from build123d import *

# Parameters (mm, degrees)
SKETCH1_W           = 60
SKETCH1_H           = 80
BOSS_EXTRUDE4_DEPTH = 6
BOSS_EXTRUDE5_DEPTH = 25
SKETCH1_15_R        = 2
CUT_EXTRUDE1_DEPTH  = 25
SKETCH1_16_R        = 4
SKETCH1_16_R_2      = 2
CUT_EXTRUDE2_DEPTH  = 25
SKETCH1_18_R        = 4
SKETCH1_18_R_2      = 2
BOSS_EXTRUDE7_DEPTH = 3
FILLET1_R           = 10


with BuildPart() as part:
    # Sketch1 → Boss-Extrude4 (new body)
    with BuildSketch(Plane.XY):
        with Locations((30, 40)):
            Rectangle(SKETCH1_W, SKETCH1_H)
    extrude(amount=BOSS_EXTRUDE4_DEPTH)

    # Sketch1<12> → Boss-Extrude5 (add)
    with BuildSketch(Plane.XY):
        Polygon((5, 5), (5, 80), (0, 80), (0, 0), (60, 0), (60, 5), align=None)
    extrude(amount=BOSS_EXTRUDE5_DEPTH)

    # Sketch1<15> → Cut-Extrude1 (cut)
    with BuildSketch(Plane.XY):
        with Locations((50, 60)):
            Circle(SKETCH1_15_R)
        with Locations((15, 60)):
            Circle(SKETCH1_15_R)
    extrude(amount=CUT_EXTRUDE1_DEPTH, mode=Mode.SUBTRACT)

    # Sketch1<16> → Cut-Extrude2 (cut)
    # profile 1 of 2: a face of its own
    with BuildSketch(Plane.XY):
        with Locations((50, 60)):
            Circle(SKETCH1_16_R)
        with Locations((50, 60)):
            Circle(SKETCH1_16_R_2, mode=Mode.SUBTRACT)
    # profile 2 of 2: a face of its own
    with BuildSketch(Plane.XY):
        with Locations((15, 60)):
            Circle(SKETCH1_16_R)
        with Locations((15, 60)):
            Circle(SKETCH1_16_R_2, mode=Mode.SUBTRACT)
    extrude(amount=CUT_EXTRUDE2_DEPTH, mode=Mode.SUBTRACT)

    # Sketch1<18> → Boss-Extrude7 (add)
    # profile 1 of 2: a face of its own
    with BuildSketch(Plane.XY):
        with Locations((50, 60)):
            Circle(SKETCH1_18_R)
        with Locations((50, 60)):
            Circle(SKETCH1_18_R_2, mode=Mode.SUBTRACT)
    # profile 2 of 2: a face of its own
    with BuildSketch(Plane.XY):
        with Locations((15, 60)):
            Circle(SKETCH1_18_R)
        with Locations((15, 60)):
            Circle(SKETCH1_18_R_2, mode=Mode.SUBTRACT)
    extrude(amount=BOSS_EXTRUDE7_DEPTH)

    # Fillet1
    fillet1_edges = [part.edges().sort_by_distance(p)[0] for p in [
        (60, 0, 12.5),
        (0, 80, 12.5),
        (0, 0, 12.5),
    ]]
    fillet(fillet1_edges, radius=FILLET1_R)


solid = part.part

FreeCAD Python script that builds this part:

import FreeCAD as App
import Part
import Sketcher
from FreeCAD import Vector
Q = App.Units.Quantity


def edges_at(feature, points):
    """Names of the edges that pass closest to the given points."""
    edges = feature.Shape.Edges
    near = lambda p: min(range(len(edges)), key=lambda i: edges[i].distToShape(Part.Vertex(*p))[0])
    return sorted({f"Edge{near(p) + 1}" for p in points})

doc = App.newDocument("Part")
body = doc.addObject("PartDesign::Body", "Body")

# Sketch on XY plane
sketch1 = body.newObject("Sketcher::SketchObject", "Sketch")
sketch1.AttachmentSupport = (doc.getObject("XY_Plane"), [""])
sketch1.MapMode = "FlatFace"
sketch1.addGeometry(Part.LineSegment(Vector(0, 80, 0), Vector(0, 0, 0)), False)
sketch1.addGeometry(Part.LineSegment(Vector(0, 0, 0), Vector(60, 0, 0)), False)
sketch1.addGeometry(Part.LineSegment(Vector(60, 0, 0), Vector(60, 80, 0)), False)
sketch1.addGeometry(Part.LineSegment(Vector(60, 80, 0), Vector(0, 80, 0)), False)
sketch1.addConstraint(Sketcher.Constraint("Coincident", 0, 2, 1, 1))
sketch1.addConstraint(Sketcher.Constraint("Coincident", 1, 2, 2, 1))
sketch1.addConstraint(Sketcher.Constraint("Coincident", 2, 2, 3, 1))
sketch1.addConstraint(Sketcher.Constraint("Coincident", 3, 2, 0, 1))
sketch1.addConstraint(Sketcher.Constraint("Vertical", 0))
sketch1.addConstraint(Sketcher.Constraint("Horizontal", 1))
sketch1.addConstraint(Sketcher.Constraint("Vertical", 2))
sketch1.addConstraint(Sketcher.Constraint("Horizontal", 3))
sketch1.addConstraint(Sketcher.Constraint("Coincident", 0, 2, -1, 1))
sketch1.addConstraint(Sketcher.Constraint("DistanceX", 1, 1, 1, 2, Q("60 mm")))
sketch1.addConstraint(Sketcher.Constraint("DistanceY", 0, 2, 0, 1, Q("80 mm")))
pad1 = body.newObject("PartDesign::Pad", "Pad")
pad1.Profile = sketch1
pad1.Length = 6

# Sketch on XY plane
sketch2 = body.newObject("Sketcher::SketchObject", "Sketch001")
sketch2.AttachmentSupport = (doc.getObject("XY_Plane"), [""])
sketch2.MapMode = "FlatFace"
sketch2.addGeometry(Part.LineSegment(Vector(5, 5, 0), Vector(5, 80, 0)), False)
sketch2.addGeometry(Part.LineSegment(Vector(5, 80, 0), Vector(0, 80, 0)), False)
sketch2.addGeometry(Part.LineSegment(Vector(0, 80, 0), Vector(0, 0, 0)), False)
sketch2.addGeometry(Part.LineSegment(Vector(0, 0, 0), Vector(60, 0, 0)), False)
sketch2.addGeometry(Part.LineSegment(Vector(60, 0, 0), Vector(60, 5, 0)), False)
sketch2.addGeometry(Part.LineSegment(Vector(60, 5, 0), Vector(5, 5, 0)), False)
sketch2.addConstraint(Sketcher.Constraint("Coincident", 0, 2, 1, 1))
sketch2.addConstraint(Sketcher.Constraint("Coincident", 1, 2, 2, 1))
sketch2.addConstraint(Sketcher.Constraint("Coincident", 2, 2, 3, 1))
sketch2.addConstraint(Sketcher.Constraint("Coincident", 3, 2, 4, 1))
sketch2.addConstraint(Sketcher.Constraint("Coincident", 4, 2, 5, 1))
sketch2.addConstraint(Sketcher.Constraint("Coincident", 5, 2, 0, 1))
sketch2.addConstraint(Sketcher.Constraint("Vertical", 0))
sketch2.addConstraint(Sketcher.Constraint("Horizontal", 1))
sketch2.addConstraint(Sketcher.Constraint("Vertical", 2))
sketch2.addConstraint(Sketcher.Constraint("Horizontal", 3))
sketch2.addConstraint(Sketcher.Constraint("Vertical", 4))
sketch2.addConstraint(Sketcher.Constraint("Horizontal", 5))
sketch2.addConstraint(Sketcher.Constraint("Coincident", 2, 2, -1, 1))
sketch2.addConstraint(Sketcher.Constraint("Equal", 1, 4))
sketch2.addConstraint(Sketcher.Constraint("DistanceX", 1, 2, 1, 1, Q("5 mm")))
sketch2.addConstraint(Sketcher.Constraint("DistanceX", 3, 1, 3, 2, Q("60 mm")))
sketch2.addConstraint(Sketcher.Constraint("DistanceY", 0, 1, 0, 2, Q("75 mm")))
pad2 = body.newObject("PartDesign::Pad", "Pad001")
pad2.Profile = sketch2
pad2.Length = 25

# Sketch on XY plane
sketch3 = body.newObject("Sketcher::SketchObject", "Sketch002")
sketch3.AttachmentSupport = (doc.getObject("XY_Plane"), [""])
sketch3.MapMode = "FlatFace"
sketch3.addGeometry(Part.Circle(Vector(50, 60, 0), Vector(0, 0, 1), 2), False)
sketch3.addGeometry(Part.Circle(Vector(15, 60, 0), Vector(0, 0, 1), 2), False)
sketch3.addConstraint(Sketcher.Constraint("Equal", 0, 1))
sketch3.addConstraint(Sketcher.Constraint("Horizontal", 0, 3, 1, 3))
sketch3.addConstraint(Sketcher.Constraint("Diameter", 0, Q("4 mm")))
sketch3.addConstraint(Sketcher.Constraint("DistanceX", -1, 1, 0, 3, Q("50 mm")))
sketch3.addConstraint(Sketcher.Constraint("DistanceY", -1, 1, 0, 3, Q("60 mm")))
sketch3.addConstraint(Sketcher.Constraint("DistanceX", -1, 1, 1, 3, Q("15 mm")))
pocket1 = body.newObject("PartDesign::Pocket", "Pocket")
pocket1.Profile = sketch3
pocket1.Length = 25
pocket1.Reversed = True

# Sketch on XY plane
sketch4 = body.newObject("Sketcher::SketchObject", "Sketch003")
sketch4.AttachmentSupport = (doc.getObject("XY_Plane"), [""])
sketch4.MapMode = "FlatFace"
sketch4.addGeometry(Part.Circle(Vector(50, 60, 0), Vector(0, 0, 1), 4), False)
sketch4.addGeometry(Part.Circle(Vector(50, 60, 0), Vector(0, 0, 1), 2), False)
sketch4.addGeometry(Part.Circle(Vector(15, 60, 0), Vector(0, 0, 1), 4), False)
sketch4.addGeometry(Part.Circle(Vector(15, 60, 0), Vector(0, 0, 1), 2), False)
sketch4.addConstraint(Sketcher.Constraint("Coincident", 1, 3, 0, 3))
sketch4.addConstraint(Sketcher.Constraint("Coincident", 3, 3, 2, 3))
sketch4.addConstraint(Sketcher.Constraint("Equal", 0, 2))
sketch4.addConstraint(Sketcher.Constraint("Equal", 1, 3))
sketch4.addConstraint(Sketcher.Constraint("Horizontal", 1, 3, 2, 3))
sketch4.addConstraint(Sketcher.Constraint("Diameter", 0, Q("8 mm")))
sketch4.addConstraint(Sketcher.Constraint("Diameter", 1, Q("4 mm")))
sketch4.addConstraint(Sketcher.Constraint("DistanceX", -1, 1, 0, 3, Q("50 mm")))
sketch4.addConstraint(Sketcher.Constraint("DistanceY", -1, 1, 0, 3, Q("60 mm")))
sketch4.addConstraint(Sketcher.Constraint("DistanceX", -1, 1, 2, 3, Q("15 mm")))
pocket2 = body.newObject("PartDesign::Pocket", "Pocket001")
pocket2.Profile = sketch4
pocket2.Length = 25
pocket2.Reversed = True

# Sketch on XY plane
sketch5 = body.newObject("Sketcher::SketchObject", "Sketch004")
sketch5.AttachmentSupport = (doc.getObject("XY_Plane"), [""])
sketch5.MapMode = "FlatFace"
sketch5.addGeometry(Part.Circle(Vector(50, 60, 0), Vector(0, 0, 1), 4), False)
sketch5.addGeometry(Part.Circle(Vector(50, 60, 0), Vector(0, 0, 1), 2), False)
sketch5.addGeometry(Part.Circle(Vector(15, 60, 0), Vector(0, 0, 1), 4), False)
sketch5.addGeometry(Part.Circle(Vector(15, 60, 0), Vector(0, 0, 1), 2), False)
sketch5.addConstraint(Sketcher.Constraint("Coincident", 1, 3, 0, 3))
sketch5.addConstraint(Sketcher.Constraint("Coincident", 3, 3, 2, 3))
sketch5.addConstraint(Sketcher.Constraint("Equal", 0, 2))
sketch5.addConstraint(Sketcher.Constraint("Equal", 1, 3))
sketch5.addConstraint(Sketcher.Constraint("Horizontal", 1, 3, 2, 3))
sketch5.addConstraint(Sketcher.Constraint("Diameter", 0, Q("8 mm")))
sketch5.addConstraint(Sketcher.Constraint("Diameter", 1, Q("4 mm")))
sketch5.addConstraint(Sketcher.Constraint("DistanceX", -1, 1, 0, 3, Q("50 mm")))
sketch5.addConstraint(Sketcher.Constraint("DistanceY", -1, 1, 0, 3, Q("60 mm")))
sketch5.addConstraint(Sketcher.Constraint("DistanceX", -1, 1, 2, 3, Q("15 mm")))
pad3 = body.newObject("PartDesign::Pad", "Pad002")
pad3.Profile = sketch5
pad3.Length = 3
doc.recompute()

fillet = body.newObject("PartDesign::Fillet", "Fillet")
fillet.Base = (pad3, edges_at(pad3, [(60, 0, 12.5), (0, 80, 12.5), (0, 0, 12.5)]))
fillet.Radius = 10

doc.recompute()
